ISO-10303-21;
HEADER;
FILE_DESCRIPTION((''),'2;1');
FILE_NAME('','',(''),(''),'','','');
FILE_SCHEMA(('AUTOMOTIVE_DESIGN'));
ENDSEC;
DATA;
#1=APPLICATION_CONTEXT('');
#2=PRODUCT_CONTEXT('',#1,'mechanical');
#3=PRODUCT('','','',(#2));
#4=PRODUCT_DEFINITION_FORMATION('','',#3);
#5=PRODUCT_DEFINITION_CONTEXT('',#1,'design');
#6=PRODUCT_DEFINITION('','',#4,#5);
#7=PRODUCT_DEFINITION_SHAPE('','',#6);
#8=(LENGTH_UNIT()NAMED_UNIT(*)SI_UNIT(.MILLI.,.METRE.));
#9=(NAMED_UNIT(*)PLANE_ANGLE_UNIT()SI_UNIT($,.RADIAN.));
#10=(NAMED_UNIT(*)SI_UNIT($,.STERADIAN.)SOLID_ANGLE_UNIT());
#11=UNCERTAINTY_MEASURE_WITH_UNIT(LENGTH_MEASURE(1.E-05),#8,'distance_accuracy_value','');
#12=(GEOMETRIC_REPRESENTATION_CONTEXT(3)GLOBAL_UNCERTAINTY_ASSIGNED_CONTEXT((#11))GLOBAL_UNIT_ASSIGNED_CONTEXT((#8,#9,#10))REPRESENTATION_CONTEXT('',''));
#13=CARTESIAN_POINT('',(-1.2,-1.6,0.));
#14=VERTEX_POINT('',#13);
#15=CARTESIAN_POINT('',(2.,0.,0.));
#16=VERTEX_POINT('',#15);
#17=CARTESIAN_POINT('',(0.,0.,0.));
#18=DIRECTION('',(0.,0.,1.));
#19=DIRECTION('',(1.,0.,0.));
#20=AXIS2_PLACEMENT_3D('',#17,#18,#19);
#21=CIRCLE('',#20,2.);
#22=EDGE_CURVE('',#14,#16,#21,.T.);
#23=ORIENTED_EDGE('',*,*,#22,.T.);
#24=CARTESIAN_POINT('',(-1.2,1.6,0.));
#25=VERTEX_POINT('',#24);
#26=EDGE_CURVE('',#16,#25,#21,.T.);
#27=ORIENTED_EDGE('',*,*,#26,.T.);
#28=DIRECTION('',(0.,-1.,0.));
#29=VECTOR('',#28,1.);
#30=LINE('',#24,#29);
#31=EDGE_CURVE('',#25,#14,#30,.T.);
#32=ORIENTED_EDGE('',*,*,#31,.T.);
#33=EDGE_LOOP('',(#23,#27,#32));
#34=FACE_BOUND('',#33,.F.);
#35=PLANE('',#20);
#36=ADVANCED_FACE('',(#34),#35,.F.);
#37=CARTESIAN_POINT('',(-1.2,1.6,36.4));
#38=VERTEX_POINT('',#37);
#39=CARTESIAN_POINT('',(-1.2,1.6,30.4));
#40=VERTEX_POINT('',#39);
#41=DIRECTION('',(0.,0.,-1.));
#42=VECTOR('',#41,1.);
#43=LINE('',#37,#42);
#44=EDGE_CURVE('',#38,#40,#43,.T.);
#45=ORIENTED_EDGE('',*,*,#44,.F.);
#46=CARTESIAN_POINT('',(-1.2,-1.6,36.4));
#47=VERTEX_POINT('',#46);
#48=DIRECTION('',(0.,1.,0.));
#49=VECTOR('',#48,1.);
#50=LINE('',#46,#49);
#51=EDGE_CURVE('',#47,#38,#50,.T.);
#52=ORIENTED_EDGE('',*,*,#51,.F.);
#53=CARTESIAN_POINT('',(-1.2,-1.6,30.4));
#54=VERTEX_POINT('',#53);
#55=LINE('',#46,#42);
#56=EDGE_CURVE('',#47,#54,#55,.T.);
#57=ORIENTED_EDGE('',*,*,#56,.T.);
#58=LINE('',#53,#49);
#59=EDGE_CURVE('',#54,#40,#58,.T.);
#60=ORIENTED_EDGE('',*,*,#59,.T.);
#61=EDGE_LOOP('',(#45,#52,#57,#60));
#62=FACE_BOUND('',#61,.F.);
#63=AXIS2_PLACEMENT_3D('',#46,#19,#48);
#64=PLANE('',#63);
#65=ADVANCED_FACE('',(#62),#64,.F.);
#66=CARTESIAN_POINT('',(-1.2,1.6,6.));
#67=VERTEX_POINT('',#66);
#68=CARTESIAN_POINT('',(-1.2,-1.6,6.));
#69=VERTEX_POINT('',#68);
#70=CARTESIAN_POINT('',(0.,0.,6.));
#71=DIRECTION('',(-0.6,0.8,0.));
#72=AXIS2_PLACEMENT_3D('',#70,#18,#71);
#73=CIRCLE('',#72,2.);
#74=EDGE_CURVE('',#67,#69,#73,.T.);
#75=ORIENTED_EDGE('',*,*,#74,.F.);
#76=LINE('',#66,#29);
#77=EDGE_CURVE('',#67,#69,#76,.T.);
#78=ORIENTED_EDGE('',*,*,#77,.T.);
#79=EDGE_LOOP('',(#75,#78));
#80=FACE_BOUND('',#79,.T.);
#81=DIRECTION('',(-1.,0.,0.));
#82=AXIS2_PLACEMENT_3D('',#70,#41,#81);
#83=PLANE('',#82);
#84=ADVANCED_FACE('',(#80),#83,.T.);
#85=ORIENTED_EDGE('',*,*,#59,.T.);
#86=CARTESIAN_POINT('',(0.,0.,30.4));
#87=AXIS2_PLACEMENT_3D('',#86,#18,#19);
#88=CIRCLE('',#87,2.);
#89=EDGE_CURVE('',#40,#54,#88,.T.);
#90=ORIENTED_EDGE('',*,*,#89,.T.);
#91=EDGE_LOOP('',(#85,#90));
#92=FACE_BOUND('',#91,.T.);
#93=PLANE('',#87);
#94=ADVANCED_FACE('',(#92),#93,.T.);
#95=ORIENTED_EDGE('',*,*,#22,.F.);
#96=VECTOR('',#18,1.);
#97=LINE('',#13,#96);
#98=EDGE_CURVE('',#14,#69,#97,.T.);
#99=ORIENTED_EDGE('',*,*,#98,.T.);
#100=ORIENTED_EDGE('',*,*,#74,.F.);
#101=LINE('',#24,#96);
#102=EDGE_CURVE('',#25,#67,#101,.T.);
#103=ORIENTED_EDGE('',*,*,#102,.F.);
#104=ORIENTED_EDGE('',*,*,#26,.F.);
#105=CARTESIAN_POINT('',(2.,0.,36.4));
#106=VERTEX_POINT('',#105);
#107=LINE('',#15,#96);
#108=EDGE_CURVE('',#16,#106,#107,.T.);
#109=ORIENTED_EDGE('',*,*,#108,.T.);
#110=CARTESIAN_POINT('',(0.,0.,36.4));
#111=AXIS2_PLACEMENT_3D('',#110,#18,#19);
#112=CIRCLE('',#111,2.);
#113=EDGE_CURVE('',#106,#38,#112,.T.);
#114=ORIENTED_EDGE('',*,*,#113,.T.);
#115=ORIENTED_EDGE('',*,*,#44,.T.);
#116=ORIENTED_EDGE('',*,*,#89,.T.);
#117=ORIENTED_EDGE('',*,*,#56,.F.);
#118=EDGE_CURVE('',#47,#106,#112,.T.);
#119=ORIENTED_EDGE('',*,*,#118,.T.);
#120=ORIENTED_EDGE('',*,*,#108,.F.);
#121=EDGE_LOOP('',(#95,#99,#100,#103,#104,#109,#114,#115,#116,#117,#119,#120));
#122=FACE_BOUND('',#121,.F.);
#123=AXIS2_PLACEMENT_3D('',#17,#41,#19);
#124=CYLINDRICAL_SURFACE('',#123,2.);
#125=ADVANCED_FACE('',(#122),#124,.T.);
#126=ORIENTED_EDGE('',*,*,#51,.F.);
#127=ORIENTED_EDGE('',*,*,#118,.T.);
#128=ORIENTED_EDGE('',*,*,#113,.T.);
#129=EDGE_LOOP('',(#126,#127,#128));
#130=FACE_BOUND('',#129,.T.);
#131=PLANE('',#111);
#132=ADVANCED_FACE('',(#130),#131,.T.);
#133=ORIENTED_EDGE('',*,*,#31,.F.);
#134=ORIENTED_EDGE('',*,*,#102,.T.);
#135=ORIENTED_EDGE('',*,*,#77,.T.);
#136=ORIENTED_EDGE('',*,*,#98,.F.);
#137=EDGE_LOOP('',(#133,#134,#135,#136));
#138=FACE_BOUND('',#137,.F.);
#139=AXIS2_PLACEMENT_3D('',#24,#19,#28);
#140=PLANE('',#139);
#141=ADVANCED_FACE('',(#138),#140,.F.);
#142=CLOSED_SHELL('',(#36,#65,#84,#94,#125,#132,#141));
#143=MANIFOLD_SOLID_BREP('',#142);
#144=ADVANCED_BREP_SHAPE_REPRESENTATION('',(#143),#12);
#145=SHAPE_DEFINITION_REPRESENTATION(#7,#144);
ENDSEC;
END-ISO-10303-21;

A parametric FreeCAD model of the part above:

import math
import FreeCAD as App
import Part
import Sketcher
from FreeCAD import Vector
Q = App.Units.Quantity

doc = App.newDocument("Part")
body = doc.addObject("PartDesign::Body", "Body")

sketch1 = body.newObject("Sketcher::SketchObject", "Sketch")
sketch1.AttachmentSupport = (doc.getObject("XY_Plane"), [""])
sketch1.MapMode = "FlatFace"
sketch1.addGeometry(Part.Circle(Vector(0, 0, 0), Vector(0, 0, 1), 2), False)
sketch1.addConstraint([
    Sketcher.Constraint("Coincident", 0, 3, -1, 1),
    Sketcher.Constraint("Diameter", 0, Q("4 mm")),
])
pad1 = body.newObject("PartDesign::Pad", "Pad")
pad1.Profile = sketch1
pad1.Length = 36.4

sketch2 = body.newObject("Sketcher::SketchObject", "Sketch001")
sketch2.AttachmentSupport = (doc.getObject("XY_Plane"), [""])
sketch2.MapMode = "FlatFace"
sketch2.AttachmentOffset = App.Placement(Vector(0, 0, 36.4), App.Rotation())
sketch2.addGeometry([
    Part.LineSegment(Vector(-1.2, -1.6, 0), Vector(-1.2, 1.6, 0)),
    Part.ArcOfCircle(Part.Circle(Vector(0, 0, 0), Vector(0, 0, 1), 2), math.radians(127), math.radians(233)),
], False)
sketch2.addConstraint([
    Sketcher.Constraint("Coincident", 0, 1, 1, 2),
    Sketcher.Constraint("Coincident", 1, 1, 0, 2),
    Sketcher.Constraint("Vertical", 0),
    Sketcher.Constraint("Coincident", 1, 3, -1, 1),
    Sketcher.Constraint("DistanceY", 0, 1, 0, 2, Q("3.2 mm")),
    Sketcher.Constraint("Radius", 1, Q("2 mm")),
])
pocket1 = body.newObject("PartDesign::Pocket", "Pocket")
pocket1.Profile = sketch2
pocket1.Length = 6

sketch3 = body.newObject("Sketcher::SketchObject", "Sketch002")
sketch3.AttachmentSupport = (doc.getObject("XY_Plane"), [""])
sketch3.MapMode = "FlatFace"
sketch3.addGeometry([
    Part.ArcOfCircle(Part.Circle(Vector(0, 0, 0), Vector(0, 0, 1), 2), math.radians(127), math.radians(233)),
    Part.LineSegment(Vector(-1.2, 1.6, 0), Vector(-1.2, -1.6, 0)),
], False)
sketch3.addConstraint([
    Sketcher.Constraint("Coincident", 0, 1, 1, 1),
    Sketcher.Constraint("Coincident", 1, 2, 0, 2),
    Sketcher.Constraint("Vertical", 1),
    Sketcher.Constraint("Coincident", 0, 3, -1, 1),
    Sketcher.Constraint("DistanceY", 1, 2, 1, 1, Q("3.2 mm")),
    Sketcher.Constraint("Radius", 0, Q("2 mm")),
])
pocket2 = body.newObject("PartDesign::Pocket", "Pocket001")
pocket2.Profile = sketch3
pocket2.Length = 6
pocket2.Reversed = True

doc.recompute()
